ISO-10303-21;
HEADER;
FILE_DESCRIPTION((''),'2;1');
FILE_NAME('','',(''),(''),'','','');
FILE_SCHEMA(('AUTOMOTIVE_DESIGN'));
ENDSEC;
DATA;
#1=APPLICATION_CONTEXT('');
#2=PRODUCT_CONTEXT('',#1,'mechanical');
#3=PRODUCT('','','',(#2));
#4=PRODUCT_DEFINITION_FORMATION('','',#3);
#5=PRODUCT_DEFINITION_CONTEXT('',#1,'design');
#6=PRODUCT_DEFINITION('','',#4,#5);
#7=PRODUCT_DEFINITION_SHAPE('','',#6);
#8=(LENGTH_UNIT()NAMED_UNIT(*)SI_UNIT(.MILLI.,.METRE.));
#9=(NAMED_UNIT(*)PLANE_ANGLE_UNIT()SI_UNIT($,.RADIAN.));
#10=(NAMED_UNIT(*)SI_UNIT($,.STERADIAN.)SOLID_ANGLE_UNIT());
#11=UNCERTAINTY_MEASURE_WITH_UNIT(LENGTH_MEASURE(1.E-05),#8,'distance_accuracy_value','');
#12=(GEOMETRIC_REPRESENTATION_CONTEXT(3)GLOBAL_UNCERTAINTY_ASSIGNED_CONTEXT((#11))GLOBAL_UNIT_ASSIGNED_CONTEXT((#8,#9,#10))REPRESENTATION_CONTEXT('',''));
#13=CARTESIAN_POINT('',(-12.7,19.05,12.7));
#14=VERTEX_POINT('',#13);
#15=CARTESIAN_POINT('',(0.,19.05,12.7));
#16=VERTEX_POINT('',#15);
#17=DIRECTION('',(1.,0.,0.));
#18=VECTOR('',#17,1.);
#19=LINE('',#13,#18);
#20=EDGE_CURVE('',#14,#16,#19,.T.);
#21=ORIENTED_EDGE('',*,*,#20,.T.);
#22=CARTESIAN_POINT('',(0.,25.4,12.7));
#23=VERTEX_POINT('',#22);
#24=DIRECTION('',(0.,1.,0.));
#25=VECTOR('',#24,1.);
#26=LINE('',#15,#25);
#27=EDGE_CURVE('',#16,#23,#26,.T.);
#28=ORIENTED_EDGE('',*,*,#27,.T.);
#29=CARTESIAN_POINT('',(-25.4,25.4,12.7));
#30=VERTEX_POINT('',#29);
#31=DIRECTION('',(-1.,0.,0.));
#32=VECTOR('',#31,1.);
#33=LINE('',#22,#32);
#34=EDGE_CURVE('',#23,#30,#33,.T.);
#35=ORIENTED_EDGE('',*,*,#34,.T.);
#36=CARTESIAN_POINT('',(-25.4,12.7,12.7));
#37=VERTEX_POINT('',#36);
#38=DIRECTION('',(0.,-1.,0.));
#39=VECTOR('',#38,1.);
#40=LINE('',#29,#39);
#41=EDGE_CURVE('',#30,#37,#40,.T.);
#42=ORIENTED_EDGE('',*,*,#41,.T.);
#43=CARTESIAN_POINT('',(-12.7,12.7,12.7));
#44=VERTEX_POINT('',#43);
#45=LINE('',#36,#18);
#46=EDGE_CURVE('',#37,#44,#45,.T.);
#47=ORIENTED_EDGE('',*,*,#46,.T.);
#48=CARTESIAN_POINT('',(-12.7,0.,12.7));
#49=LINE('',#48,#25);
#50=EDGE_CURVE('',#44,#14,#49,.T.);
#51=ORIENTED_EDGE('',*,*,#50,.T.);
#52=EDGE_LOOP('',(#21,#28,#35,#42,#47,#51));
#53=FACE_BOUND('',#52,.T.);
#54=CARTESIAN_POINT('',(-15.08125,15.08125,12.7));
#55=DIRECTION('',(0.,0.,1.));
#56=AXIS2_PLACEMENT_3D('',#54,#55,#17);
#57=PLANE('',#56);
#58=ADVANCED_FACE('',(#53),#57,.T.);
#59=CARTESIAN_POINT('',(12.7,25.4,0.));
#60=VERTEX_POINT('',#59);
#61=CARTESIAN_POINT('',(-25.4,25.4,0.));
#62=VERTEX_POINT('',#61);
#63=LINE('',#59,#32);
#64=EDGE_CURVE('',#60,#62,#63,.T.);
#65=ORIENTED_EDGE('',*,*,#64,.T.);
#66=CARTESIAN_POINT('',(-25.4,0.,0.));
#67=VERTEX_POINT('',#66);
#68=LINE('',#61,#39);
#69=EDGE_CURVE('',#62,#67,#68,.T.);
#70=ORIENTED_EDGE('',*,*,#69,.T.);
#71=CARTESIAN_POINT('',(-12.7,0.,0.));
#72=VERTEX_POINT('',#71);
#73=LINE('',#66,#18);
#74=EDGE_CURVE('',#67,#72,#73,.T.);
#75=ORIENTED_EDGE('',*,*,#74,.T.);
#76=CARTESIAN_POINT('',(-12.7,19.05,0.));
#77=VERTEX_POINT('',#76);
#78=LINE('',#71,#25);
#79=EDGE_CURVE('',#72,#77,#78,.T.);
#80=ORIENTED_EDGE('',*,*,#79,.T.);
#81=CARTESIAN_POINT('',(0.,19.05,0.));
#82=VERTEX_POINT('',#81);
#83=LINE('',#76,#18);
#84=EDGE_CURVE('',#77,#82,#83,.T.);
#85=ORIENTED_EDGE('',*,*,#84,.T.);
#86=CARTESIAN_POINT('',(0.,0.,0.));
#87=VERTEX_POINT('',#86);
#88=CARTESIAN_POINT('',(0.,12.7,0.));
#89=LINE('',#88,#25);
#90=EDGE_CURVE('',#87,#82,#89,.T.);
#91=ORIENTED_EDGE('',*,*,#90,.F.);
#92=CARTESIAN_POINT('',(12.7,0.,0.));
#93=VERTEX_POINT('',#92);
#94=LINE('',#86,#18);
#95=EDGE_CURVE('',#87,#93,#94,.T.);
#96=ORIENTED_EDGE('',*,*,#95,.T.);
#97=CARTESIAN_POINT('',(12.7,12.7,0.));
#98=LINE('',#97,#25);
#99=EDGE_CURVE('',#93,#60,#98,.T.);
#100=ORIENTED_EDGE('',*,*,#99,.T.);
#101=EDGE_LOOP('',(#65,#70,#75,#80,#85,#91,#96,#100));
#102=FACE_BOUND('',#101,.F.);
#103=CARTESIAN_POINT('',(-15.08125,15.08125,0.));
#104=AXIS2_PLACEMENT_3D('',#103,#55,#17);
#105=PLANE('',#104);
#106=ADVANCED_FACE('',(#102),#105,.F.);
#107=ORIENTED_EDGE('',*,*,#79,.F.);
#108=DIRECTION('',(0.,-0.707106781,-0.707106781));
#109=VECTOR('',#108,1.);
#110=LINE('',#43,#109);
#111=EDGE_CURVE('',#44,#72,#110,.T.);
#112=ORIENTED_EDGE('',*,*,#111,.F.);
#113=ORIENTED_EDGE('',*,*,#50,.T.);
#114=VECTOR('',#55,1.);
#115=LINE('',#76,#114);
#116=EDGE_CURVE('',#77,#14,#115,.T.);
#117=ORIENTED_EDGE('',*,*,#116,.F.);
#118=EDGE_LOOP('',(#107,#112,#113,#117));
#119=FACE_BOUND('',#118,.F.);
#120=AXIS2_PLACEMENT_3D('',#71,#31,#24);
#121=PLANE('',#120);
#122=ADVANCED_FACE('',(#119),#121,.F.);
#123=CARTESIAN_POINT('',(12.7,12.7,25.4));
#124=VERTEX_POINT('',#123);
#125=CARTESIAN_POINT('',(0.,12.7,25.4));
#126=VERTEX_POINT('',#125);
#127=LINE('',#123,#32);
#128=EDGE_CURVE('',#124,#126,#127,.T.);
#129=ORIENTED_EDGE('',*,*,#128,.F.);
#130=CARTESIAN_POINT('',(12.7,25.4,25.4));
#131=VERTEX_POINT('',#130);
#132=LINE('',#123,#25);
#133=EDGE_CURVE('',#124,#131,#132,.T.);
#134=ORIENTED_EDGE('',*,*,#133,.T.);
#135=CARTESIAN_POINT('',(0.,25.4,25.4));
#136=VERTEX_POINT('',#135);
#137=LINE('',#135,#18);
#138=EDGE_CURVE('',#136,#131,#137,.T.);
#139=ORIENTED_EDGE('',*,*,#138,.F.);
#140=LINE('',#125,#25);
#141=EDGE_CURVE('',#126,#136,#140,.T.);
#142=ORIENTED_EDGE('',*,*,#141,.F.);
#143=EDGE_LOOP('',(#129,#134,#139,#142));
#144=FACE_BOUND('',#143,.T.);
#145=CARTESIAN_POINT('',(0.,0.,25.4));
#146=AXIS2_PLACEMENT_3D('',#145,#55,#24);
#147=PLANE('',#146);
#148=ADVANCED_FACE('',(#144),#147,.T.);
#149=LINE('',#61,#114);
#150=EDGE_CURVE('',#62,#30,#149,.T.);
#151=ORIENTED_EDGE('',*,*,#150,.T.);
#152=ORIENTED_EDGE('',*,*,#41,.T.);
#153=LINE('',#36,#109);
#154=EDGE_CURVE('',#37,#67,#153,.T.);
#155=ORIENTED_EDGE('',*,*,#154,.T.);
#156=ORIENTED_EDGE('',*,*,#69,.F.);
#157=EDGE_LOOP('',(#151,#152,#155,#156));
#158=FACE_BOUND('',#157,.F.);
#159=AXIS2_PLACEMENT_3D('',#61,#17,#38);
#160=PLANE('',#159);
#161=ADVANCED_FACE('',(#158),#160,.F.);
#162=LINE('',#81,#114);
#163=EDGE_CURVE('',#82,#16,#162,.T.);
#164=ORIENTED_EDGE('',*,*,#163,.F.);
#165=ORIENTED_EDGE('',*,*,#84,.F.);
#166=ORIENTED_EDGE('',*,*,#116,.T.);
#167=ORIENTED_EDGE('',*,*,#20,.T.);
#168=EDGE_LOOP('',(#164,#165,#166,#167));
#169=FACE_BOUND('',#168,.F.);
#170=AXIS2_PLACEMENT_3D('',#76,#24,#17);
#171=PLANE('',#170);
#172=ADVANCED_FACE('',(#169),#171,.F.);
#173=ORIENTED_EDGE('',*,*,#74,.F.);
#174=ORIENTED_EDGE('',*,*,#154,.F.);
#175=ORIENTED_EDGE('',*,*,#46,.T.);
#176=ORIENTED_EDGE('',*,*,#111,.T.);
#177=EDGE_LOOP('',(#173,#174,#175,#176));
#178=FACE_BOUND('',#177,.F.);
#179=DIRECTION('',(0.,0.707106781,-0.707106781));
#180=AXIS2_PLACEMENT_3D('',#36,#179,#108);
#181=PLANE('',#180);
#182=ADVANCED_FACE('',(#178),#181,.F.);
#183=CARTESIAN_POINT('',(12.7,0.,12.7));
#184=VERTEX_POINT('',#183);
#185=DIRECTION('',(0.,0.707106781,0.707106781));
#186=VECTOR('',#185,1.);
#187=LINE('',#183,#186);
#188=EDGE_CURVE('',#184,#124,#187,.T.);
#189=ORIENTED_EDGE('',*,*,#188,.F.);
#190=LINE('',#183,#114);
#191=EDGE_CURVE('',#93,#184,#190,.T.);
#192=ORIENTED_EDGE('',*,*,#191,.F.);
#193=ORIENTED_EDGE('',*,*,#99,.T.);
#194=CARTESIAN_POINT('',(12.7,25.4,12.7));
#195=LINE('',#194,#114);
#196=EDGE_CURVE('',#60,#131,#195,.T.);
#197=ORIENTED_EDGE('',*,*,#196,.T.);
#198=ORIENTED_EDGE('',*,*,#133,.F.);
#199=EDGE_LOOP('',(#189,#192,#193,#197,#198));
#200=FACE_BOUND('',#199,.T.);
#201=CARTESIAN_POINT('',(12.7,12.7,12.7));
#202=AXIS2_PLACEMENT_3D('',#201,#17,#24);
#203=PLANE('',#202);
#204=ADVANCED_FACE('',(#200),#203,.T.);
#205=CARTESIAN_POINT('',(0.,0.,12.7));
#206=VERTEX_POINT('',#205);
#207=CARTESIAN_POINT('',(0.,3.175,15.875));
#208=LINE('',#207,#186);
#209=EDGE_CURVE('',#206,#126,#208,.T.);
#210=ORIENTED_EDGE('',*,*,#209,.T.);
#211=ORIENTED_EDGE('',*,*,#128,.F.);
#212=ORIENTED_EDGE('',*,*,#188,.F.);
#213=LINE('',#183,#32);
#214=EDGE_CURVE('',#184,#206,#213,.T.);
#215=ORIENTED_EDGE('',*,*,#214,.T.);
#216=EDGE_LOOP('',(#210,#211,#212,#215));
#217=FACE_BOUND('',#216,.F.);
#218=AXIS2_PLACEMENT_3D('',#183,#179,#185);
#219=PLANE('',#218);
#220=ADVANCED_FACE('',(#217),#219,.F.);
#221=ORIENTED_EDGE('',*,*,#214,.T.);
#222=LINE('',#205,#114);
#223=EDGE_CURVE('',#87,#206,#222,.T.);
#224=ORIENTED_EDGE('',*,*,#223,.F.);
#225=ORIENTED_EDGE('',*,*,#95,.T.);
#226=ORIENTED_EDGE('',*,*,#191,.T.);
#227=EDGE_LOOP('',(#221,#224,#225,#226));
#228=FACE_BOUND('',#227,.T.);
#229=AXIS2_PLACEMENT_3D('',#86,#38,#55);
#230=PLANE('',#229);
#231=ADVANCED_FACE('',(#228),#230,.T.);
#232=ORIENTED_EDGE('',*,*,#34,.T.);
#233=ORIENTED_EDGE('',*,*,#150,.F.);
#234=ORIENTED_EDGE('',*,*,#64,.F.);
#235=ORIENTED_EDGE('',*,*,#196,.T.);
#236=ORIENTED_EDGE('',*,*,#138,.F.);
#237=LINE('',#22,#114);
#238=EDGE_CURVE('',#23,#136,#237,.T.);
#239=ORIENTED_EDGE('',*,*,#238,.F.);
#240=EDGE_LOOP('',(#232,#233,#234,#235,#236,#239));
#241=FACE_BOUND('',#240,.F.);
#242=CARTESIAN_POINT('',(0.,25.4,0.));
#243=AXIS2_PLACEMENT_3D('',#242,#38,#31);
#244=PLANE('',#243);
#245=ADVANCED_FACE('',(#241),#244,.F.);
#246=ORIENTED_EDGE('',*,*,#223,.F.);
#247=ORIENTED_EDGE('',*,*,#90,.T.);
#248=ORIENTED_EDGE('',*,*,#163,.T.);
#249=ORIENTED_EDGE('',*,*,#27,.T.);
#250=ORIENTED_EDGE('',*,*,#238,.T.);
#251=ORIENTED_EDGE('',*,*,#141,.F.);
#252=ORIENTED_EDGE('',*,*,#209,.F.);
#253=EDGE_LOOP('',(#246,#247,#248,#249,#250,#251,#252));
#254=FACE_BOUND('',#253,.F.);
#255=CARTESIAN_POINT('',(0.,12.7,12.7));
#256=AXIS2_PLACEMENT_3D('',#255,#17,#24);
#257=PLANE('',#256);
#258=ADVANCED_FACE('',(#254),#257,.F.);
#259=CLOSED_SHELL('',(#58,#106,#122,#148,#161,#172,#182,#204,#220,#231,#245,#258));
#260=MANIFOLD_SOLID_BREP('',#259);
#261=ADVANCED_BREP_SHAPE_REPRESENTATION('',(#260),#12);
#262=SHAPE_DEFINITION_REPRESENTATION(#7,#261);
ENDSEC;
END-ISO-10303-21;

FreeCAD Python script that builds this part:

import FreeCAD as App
import Part
import Sketcher
Q = App.Units.Quantity

doc = App.newDocument("Part")
params = doc.addObject("Spreadsheet::Sheet", "Params")
for row, (alias, value) in enumerate([
    ("sketch1_width", "1 in"),
    ("pad1_length", "0.5 in"),
    ("sketch2_width", "0.5 in"),
    ("sketch3_width", "1 in"),
    ("sketch3_height", "0.25 in"),
    ("pad2_length", "0.5 in"),
    ("sketch4_width", "0.5 in"),
    ("pocket2_length", "0.5 in"),
], start=1):
    params.set(f"A{row}", alias)
    params.set(f"B{row}", "=" + value)
    params.setAlias(f"B{row}", alias)

body = doc.addObject("PartDesign::Body", "Body")

# Sketch on YZ plane
sketch1 = body.newObject("Sketcher::SketchObject", "Sketch")
sketch1.AttachmentSupport = (doc.getObject("YZ_Plane"), [""])
sketch1.MapMode = "FlatFace"
sketch1.addGeometry(Part.LineSegment(App.Vector(0, 25, 0), App.Vector(0, 0, 0)), False)
sketch1.addGeometry(Part.LineSegment(App.Vector(0, 0, 0), App.Vector(25, 0, 0)), False)
sketch1.addGeometry(Part.LineSegment(App.Vector(25, 0, 0), App.Vector(25, 25, 0)), False)
sketch1.addGeometry(Part.LineSegment(App.Vector(25, 25, 0), App.Vector(0, 25, 0)), False)
sketch1.addConstraint(Sketcher.Constraint("Coincident", 0, 2, 1, 1))
sketch1.addConstraint(Sketcher.Constraint("Coincident", 1, 2, 2, 1))
sketch1.addConstraint(Sketcher.Constraint("Coincident", 2, 2, 3, 1))
sketch1.addConstraint(Sketcher.Constraint("Coincident", 3, 2, 0, 1))
sketch1.addConstraint(Sketcher.Constraint("Vertical", 0))
sketch1.addConstraint(Sketcher.Constraint("Horizontal", 1))
sketch1.addConstraint(Sketcher.Constraint("Vertical", 2))
sketch1.addConstraint(Sketcher.Constraint("Horizontal", 3))
sketch1.addConstraint(Sketcher.Constraint("Coincident", 0, 2, -1, 1))
sketch1.addConstraint(Sketcher.Constraint("Equal", 3, 0))
sketch1.addConstraint(Sketcher.Constraint("DistanceX", 1, 1, 1, 2, Q("1 in")))
sketch1.setExpression("Constraints[10]", "Params.sketch1_width")
pad1 = body.newObject("PartDesign::Pad", "Pad")
pad1.Profile = sketch1
pad1.setExpression("Length", "Params.pad1_length")

# Sketch on YZ plane
sketch2 = body.newObject("Sketcher::SketchObject", "Sketch001")
sketch2.AttachmentSupport = (doc.getObject("YZ_Plane"), [""])
sketch2.MapMode = "FlatFace"
sketch2.AttachmentOffset = App.Placement(App.Vector(0, 0, 0.5 * 25.4), App.Rotation())
sketch2.addGeometry(Part.LineSegment(App.Vector(0, 13, 0), App.Vector(13, 25, 0)), False)
sketch2.addGeometry(Part.LineSegment(App.Vector(13, 25, 0), App.Vector(0, 25, 0)), False)
sketch2.addGeometry(Part.LineSegment(App.Vector(0, 25, 0), App.Vector(0, 13, 0)), False)
sketch2.addConstraint(Sketcher.Constraint("Coincident", 0, 2, 1, 1))
sketch2.addConstraint(Sketcher.Constraint("Coincident", 1, 2, 2, 1))
sketch2.addConstraint(Sketcher.Constraint("Coincident", 2, 2, 0, 1))
sketch2.addConstraint(Sketcher.Constraint("Horizontal", 1))
sketch2.addConstraint(Sketcher.Constraint("Vertical", 2))
sketch2.addConstraint(Sketcher.Constraint("PointOnObject", 1, 2, -2))
sketch2.addConstraint(Sketcher.Constraint("Equal", 1, 2))
sketch2.addConstraint(Sketcher.Constraint("DistanceX", 1, 2, 1, 1, Q("0.5 in")))
sketch2.addConstraint(Sketcher.Constraint("DistanceY", -1, 1, 0, 2, Q("1 in")))
sketch2.setExpression("Constraints[7]", "Params.sketch2_width")
pocket1 = body.newObject("PartDesign::Pocket", "Pocket")
pocket1.Profile = sketch2
pocket1.Type = "ThroughAll"

# Sketch on XY plane
sketch3 = body.newObject("Sketcher::SketchObject", "Sketch002")
sketch3.AttachmentSupport = (doc.getObject("XY_Plane"), [""])
sketch3.MapMode = "FlatFace"
sketch3.addGeometry(Part.LineSegment(App.Vector(0, 19, 0), App.Vector(0, 25, 0)), False)
sketch3.addGeometry(Part.LineSegment(App.Vector(0, 25, 0), App.Vector(-25, 25, 0)), False)
sketch3.addGeometry(Part.LineSegment(App.Vector(-25, 25, 0), App.Vector(-25, 0, 0)), False)
sketch3.addGeometry(Part.LineSegment(App.Vector(-25, 0, 0), App.Vector(-13, 0, 0)), False)
sketch3.addGeometry(Part.LineSegment(App.Vector(-13, 0, 0), App.Vector(-13, 19, 0)), False)
sketch3.addGeometry(Part.LineSegment(App.Vector(-13, 19, 0), App.Vector(0, 19, 0)), False)
sketch3.addConstraint(Sketcher.Constraint("Coincident", 0, 2, 1, 1))
sketch3.addConstraint(Sketcher.Constraint("Coincident", 1, 2, 2, 1))
sketch3.addConstraint(Sketcher.Constraint("Coincident", 2, 2, 3, 1))
sketch3.addConstraint(Sketcher.Constraint("Coincident", 3, 2, 4, 1))
sketch3.addConstraint(Sketcher.Constraint("Coincident", 4, 2, 5, 1))
sketch3.addConstraint(Sketcher.Constraint("Coincident", 5, 2, 0, 1))
sketch3.addConstraint(Sketcher.Constraint("Vertical", 0))
sketch3.addConstraint(Sketcher.Constraint("Horizontal", 1))
sketch3.addConstraint(Sketcher.Constraint("Vertical", 2))
sketch3.addConstraint(Sketcher.Constraint("Horizontal", 3))
sketch3.addConstraint(Sketcher.Constraint("Vertical", 4))
sketch3.addConstraint(Sketcher.Constraint("Horizontal", 5))
sketch3.addConstraint(Sketcher.Constraint("PointOnObject", 0, 2, -2))
sketch3.addConstraint(Sketcher.Constraint("PointOnObject", 2, 2, -1))
sketch3.addConstraint(Sketcher.Constraint("Equal", 3, 5))
sketch3.addConstraint(Sketcher.Constraint("Equal", 1, 2))
sketch3.addConstraint(Sketcher.Constraint("DistanceX", 1, 2, 1, 1, Q("1 in")))
sketch3.addConstraint(Sketcher.Constraint("DistanceY", 0, 1, 0, 2, Q("0.25 in")))
sketch3.setExpression("Constraints[16]", "Params.sketch3_width")
sketch3.setExpression("Constraints[17]", "Params.sketch3_height")
pad2 = body.newObject("PartDesign::Pad", "Pad001")
pad2.Profile = sketch3
pad2.setExpression("Length", "Params.pad2_length")

# Sketch on YZ plane
sketch4 = body.newObject("Sketcher::SketchObject", "Sketch003")
sketch4.AttachmentSupport = (doc.getObject("YZ_Plane"), [""])
sketch4.MapMode = "FlatFace"
sketch4.AttachmentOffset = App.Placement(App.Vector(0, 0, -1 * 25.4), App.Rotation())
sketch4.addGeometry(Part.LineSegment(App.Vector(0, 13, 0), App.Vector(13, 13, 0)), False)
sketch4.addGeometry(Part.LineSegment(App.Vector(13, 13, 0), App.Vector(0, 0, 0)), False)
sketch4.addGeometry(Part.LineSegment(App.Vector(0, 0, 0), App.Vector(0, 13, 0)), False)
sketch4.addConstraint(Sketcher.Constraint("Coincident", 0, 2, 1, 1))
sketch4.addConstraint(Sketcher.Constraint("Coincident", 1, 2, 2, 1))
sketch4.addConstraint(Sketcher.Constraint("Coincident", 2, 2, 0, 1))
sketch4.addConstraint(Sketcher.Constraint("Horizontal", 0))
sketch4.addConstraint(Sketcher.Constraint("Vertical", 2))
sketch4.addConstraint(Sketcher.Constraint("Coincident", 1, 2, -1, 1))
sketch4.addConstraint(Sketcher.Constraint("Equal", 0, 2))
sketch4.addConstraint(Sketcher.Constraint("DistanceX", 0, 1, 0, 2, Q("0.5 in")))
sketch4.setExpression("Constraints[7]", "Params.sketch4_width")
pocket2 = body.newObject("PartDesign::Pocket", "Pocket001")
pocket2.Profile = sketch4
pocket2.setExpression("Length", "Params.pocket2_length")
pocket2.Reversed = True

doc.recompute()
